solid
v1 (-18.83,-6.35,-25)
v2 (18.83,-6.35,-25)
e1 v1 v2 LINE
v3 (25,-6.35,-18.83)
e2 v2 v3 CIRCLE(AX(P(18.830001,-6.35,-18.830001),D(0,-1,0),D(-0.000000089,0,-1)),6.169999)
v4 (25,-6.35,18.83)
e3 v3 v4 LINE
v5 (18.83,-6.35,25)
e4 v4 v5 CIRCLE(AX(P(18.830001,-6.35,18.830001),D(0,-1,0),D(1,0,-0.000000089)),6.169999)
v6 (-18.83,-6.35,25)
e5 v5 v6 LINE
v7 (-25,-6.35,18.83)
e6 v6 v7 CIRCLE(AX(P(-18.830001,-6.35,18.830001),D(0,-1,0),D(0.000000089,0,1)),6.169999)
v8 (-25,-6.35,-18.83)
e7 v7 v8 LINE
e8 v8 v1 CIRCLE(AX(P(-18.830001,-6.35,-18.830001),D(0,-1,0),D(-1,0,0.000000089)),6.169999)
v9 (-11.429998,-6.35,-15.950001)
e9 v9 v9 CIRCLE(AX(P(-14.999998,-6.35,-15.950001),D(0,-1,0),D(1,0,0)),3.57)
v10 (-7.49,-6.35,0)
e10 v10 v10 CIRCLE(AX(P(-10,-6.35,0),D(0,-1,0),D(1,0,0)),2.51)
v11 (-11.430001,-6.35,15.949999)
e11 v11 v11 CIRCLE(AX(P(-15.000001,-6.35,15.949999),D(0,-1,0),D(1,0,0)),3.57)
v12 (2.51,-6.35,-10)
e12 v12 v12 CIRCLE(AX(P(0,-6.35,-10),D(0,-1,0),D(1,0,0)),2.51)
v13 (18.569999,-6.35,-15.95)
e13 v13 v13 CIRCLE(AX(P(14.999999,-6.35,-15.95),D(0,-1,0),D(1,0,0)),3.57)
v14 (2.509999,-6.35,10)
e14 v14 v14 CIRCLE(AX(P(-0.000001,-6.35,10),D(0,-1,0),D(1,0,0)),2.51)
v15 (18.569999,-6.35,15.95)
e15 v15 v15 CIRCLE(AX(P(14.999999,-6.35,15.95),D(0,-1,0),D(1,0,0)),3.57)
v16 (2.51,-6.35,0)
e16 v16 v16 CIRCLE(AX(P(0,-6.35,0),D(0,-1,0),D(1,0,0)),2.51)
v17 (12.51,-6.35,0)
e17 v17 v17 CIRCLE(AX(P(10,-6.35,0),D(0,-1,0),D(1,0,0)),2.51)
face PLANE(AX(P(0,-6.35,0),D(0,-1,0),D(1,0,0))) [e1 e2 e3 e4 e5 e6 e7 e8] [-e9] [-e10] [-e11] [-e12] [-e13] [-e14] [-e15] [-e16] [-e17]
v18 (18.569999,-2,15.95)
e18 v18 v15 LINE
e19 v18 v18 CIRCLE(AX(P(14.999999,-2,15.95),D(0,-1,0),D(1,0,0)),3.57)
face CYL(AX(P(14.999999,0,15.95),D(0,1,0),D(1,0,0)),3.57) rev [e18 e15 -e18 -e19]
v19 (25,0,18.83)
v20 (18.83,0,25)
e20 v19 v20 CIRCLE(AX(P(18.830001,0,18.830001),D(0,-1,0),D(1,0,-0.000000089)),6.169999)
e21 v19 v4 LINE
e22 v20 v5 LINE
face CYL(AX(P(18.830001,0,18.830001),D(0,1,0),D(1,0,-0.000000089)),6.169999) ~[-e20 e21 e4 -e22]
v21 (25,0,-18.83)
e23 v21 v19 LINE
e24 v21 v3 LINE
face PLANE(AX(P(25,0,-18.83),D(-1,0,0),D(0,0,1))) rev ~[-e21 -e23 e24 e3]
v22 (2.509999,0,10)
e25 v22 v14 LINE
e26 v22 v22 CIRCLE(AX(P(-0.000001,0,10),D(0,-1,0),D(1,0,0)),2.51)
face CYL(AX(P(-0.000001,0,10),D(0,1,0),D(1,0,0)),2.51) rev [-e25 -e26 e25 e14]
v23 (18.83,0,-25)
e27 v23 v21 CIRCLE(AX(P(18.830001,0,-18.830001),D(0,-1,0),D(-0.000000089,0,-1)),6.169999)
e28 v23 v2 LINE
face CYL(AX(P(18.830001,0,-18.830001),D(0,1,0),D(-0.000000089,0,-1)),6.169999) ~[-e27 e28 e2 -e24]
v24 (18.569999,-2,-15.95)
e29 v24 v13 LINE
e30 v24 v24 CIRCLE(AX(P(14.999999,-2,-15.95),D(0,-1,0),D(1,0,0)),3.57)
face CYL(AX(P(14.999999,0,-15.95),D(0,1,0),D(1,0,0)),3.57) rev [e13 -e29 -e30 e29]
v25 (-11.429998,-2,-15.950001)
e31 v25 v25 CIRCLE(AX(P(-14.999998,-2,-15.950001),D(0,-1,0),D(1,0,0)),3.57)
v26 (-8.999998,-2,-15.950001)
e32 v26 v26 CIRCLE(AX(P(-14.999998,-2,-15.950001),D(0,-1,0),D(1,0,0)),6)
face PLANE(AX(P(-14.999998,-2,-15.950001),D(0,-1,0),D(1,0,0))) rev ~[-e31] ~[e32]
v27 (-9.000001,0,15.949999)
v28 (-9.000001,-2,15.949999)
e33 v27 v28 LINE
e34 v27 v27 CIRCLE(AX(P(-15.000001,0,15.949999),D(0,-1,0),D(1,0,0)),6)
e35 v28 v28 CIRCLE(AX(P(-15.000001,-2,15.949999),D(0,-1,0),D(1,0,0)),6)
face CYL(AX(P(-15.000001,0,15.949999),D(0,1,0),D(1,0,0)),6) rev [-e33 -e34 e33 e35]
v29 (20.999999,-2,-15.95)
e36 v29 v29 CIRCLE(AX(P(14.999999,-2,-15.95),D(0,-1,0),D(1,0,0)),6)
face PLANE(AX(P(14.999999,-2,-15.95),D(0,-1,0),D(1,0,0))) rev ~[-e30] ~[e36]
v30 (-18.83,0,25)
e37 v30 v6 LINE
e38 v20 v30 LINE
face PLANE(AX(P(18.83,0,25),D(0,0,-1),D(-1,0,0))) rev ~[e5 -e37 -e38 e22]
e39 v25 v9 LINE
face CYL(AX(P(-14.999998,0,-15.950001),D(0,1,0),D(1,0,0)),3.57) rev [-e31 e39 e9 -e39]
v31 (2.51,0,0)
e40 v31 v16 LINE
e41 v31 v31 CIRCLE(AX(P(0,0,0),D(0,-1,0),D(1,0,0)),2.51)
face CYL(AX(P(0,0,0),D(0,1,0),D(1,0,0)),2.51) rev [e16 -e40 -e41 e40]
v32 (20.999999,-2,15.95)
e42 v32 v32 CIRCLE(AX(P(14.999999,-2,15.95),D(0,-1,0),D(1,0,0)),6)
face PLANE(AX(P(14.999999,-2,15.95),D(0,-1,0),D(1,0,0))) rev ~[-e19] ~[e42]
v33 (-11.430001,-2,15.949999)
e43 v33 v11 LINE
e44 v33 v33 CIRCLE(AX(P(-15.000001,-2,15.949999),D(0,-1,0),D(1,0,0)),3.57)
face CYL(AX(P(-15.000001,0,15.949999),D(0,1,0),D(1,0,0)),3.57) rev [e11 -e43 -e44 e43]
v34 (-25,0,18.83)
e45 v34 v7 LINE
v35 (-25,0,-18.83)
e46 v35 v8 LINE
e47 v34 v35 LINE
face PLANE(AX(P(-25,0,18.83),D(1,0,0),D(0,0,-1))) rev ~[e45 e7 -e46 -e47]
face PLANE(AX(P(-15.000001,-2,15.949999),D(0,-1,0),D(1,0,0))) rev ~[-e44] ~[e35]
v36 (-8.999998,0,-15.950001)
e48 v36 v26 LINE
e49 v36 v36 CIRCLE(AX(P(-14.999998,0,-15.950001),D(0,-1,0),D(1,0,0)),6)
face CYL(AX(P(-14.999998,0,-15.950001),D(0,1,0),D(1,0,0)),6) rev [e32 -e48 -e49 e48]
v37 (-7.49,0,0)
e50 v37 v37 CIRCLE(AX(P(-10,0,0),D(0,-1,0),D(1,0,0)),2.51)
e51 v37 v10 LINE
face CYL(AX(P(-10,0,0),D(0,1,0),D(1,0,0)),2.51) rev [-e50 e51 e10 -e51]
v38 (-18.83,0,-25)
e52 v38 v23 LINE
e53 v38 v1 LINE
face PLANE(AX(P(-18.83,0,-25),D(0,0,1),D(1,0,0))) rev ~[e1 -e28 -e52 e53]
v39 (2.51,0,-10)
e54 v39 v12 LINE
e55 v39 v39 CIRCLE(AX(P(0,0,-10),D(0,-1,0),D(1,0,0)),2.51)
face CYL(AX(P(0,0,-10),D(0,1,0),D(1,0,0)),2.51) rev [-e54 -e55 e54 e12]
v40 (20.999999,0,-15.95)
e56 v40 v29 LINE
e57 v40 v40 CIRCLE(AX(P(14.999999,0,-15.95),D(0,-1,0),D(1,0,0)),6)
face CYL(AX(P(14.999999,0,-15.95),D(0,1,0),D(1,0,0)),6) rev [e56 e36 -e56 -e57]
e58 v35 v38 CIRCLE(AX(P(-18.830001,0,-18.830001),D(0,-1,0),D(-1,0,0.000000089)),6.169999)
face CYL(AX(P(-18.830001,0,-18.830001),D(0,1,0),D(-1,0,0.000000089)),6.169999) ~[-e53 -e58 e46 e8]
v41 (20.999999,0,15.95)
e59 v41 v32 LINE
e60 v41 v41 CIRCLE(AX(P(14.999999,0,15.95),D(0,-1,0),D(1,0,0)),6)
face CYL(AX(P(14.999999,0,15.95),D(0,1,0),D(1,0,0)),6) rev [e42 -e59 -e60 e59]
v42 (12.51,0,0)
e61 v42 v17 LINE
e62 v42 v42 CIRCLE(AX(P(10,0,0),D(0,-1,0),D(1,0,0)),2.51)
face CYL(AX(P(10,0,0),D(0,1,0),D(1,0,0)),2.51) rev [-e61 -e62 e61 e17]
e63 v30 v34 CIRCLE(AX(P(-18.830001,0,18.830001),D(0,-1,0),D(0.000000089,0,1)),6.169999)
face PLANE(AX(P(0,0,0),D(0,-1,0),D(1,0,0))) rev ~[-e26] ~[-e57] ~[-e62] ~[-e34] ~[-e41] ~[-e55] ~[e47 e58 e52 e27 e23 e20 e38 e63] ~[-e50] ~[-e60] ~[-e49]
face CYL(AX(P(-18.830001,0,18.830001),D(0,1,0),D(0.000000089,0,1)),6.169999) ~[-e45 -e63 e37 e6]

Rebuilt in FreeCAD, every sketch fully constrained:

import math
import FreeCAD as App
import Part
import Sketcher

doc = App.newDocument("Part")
body = doc.addObject("PartDesign::Body", "Body")

sketch1 = body.newObject("Sketcher::SketchObject", "Sketch")
sketch1.AttachmentSupport = (doc.getObject("XZ_Plane"), [""])
sketch1.MapMode = "FlatFace"
sketch1.addGeometry([
    Part.LineSegment(App.Vector(-18.8, -25, 0), App.Vector(18.8, -25, 0)),
    Part.ArcOfCircle(Part.Circle(App.Vector(18.8, -18.8, 0), App.Vector(0, 0, 1), 6.2), math.radians(-90), math.radians(0)),
    Part.LineSegment(App.Vector(25, -18.8, 0), App.Vector(25, 18.8, 0)),
    Part.ArcOfCircle(Part.Circle(App.Vector(18.8, 18.8, 0), App.Vector(0, 0, 1), 6.2), math.radians(0), math.radians(90)),
    Part.LineSegment(App.Vector(18.8, 25, 0), App.Vector(-18.8, 25, 0)),
    Part.ArcOfCircle(Part.Circle(App.Vector(-18.8, 18.8, 0), App.Vector(0, 0, 1), 6.2), math.radians(90), math.radians(180)),
    Part.LineSegment(App.Vector(-25, 18.8, 0), App.Vector(-25, -18.8, 0)),
    Part.ArcOfCircle(Part.Circle(App.Vector(-18.8, -18.8, 0), App.Vector(0, 0, 1), 6.2), math.radians(180), math.radians(270)),
    Part.Circle(App.Vector(-15, -16, 0), App.Vector(0, 0, 1), 3.6),
    Part.Circle(App.Vector(0, -10, 0), App.Vector(0, 0, 1), 2.5),
    Part.Circle(App.Vector(15, -15.9, 0), App.Vector(0, 0, 1), 3.6),
    Part.Circle(App.Vector(-10, 0, 0), App.Vector(0, 0, 1), 2.5),
    Part.Circle(App.Vector(-15, 15.9, 0), App.Vector(0, 0, 1), 3.6),
    Part.Circle(App.Vector(0, 10, 0), App.Vector(0, 0, 1), 2.5),
    Part.Circle(App.Vector(0, 0, 0), App.Vector(0, 0, 1), 2.5),
    Part.Circle(App.Vector(10, 0, 0), App.Vector(0, 0, 1), 2.5),
    Part.Circle(App.Vector(15, 15.9, 0), App.Vector(0, 0, 1), 3.6),
], False)
sketch1.addConstraint([
    Sketcher.Constraint("Tangent", 0, 2, 1, 1),
    Sketcher.Constraint("Tangent", 1, 2, 2, 1),
    Sketcher.Constraint("Tangent", 2, 2, 3, 1),
    Sketcher.Constraint("Tangent", 3, 2, 4, 1),
    Sketcher.Constraint("Tangent", 4, 2, 5, 1),
    Sketcher.Constraint("Tangent", 5, 2, 6, 1),
    Sketcher.Constraint("Tangent", 6, 2, 7, 1),
    Sketcher.Constraint("Tangent", 7, 2, 0, 1),
    Sketcher.Constraint("Horizontal", 0),
    Sketcher.Constraint("Vertical", 2),
    Sketcher.Constraint("Horizontal", 4),
    Sketcher.Constraint("Vertical", 6),
    Sketcher.Constraint("Coincident", 14, 3, -1, 1),
    Sketcher.Constraint("Equal", 1, 3),
    Sketcher.Constraint("Equal", 3, 5),
    Sketcher.Constraint("Equal", 5, 7),
    Sketcher.Constraint("Equal", 8, 10),
    Sketcher.Constraint("Equal", 9, 11),
    Sketcher.Constraint("Equal", 10, 12),
    Sketcher.Constraint("Equal", 11, 13),
    Sketcher.Constraint("Equal", 13, 14),
    Sketcher.Constraint("Equal", 14, 15),
    Sketcher.Constraint("Equal", 12, 16),
    Sketcher.Constraint("Symmetric", 1, 3, 5, 3, -1, 1),
    Sketcher.Constraint("Symmetric", 10, 3, 12, 3, -1, 1),
    Sketcher.Constraint("Symmetric", 9, 3, 13, 3, -1, 1),
    Sketcher.Constraint("Symmetric", 11, 3, 15, 3, -1, 1),
    Sketcher.Constraint("Symmetric", 8, 3, 16, 3, -1, 1),
    Sketcher.Constraint("Symmetric", 8, 3, 10, 3, -2),
    Sketcher.Constraint("PointOnObject", 9, 3, -2),
    Sketcher.Constraint("PointOnObject", 11, 3, -1),
    Sketcher.Constraint("Equal", 4, 2),
    Sketcher.Constraint("Diameter", 8, 7.14),
    Sketcher.Constraint("Diameter", 9, 5.02),
    Sketcher.Constraint("Radius", 1, 6.169999),
    Sketcher.Constraint("DistanceY", 9, 3, -1, 1, 10.0),
    Sketcher.Constraint("DistanceX", -1, 1, 10, 3, 14.999999),
    Sketcher.Constraint("DistanceX", 11, 3, -1, 1, 10.0),
    Sketcher.Constraint("DistanceY", 0, 2, -1, 1, 25.0),
    Sketcher.Constraint("DistanceY", 8, 3, 12, 3, 31.9),
])
pad1 = body.newObject("PartDesign::Pad", "Pad")
pad1.Profile = sketch1
pad1.Length = 6.35

sketch2 = body.newObject("Sketcher::SketchObject", "Sketch001")
sketch2.AttachmentSupport = (doc.getObject("XZ_Plane"), [""])
sketch2.MapMode = "FlatFace"
sketch2.addGeometry([
    Part.Circle(App.Vector(15, 15.9, 0), App.Vector(0, 0, 1), 6),
    Part.Circle(App.Vector(15, 15.9, 0), App.Vector(0, 0, 1), 3.6),
    Part.Circle(App.Vector(-15, 15.9, 0), App.Vector(0, 0, 1), 6),
    Part.Circle(App.Vector(-15, 15.9, 0), App.Vector(0, 0, 1), 3.6),
    Part.Circle(App.Vector(-15, -16, 0), App.Vector(0, 0, 1), 6),
    Part.Circle(App.Vector(-15, -16, 0), App.Vector(0, 0, 1), 3.6),
    Part.Circle(App.Vector(15, -15.9, 0), App.Vector(0, 0, 1), 6),
    Part.Circle(App.Vector(15, -15.9, 0), App.Vector(0, 0, 1), 3.6),
], False)
sketch2.addConstraint([
    Sketcher.Constraint("Coincident", 1, 3, 0, 3),
    Sketcher.Constraint("Coincident", 3, 3, 2, 3),
    Sketcher.Constraint("Coincident", 5, 3, 4, 3),
    Sketcher.Constraint("Coincident", 7, 3, 6, 3),
    Sketcher.Constraint("Equal", 0, 2),
    Sketcher.Constraint("Equal", 1, 3),
    Sketcher.Constraint("Equal", 2, 4),
    Sketcher.Constraint("Equal", 3, 5),
    Sketcher.Constraint("Equal", 4, 6),
    Sketcher.Constraint("Equal", 5, 7),
    Sketcher.Constraint("Symmetric", 0, 3, 4, 3, -1, 1),
    Sketcher.Constraint("Symmetric", 2, 3, 6, 3, -1, 1),
    Sketcher.Constraint("Symmetric", 0, 3, 2, 3, -2),
    Sketcher.Constraint("Diameter", 0, 12.0),
    Sketcher.Constraint("Diameter", 1, 7.14),
    Sketcher.Constraint("DistanceX", -1, 1, 0, 3, 14.999999),
    Sketcher.Constraint("DistanceY", 4, 3, 2, 3, 31.9),
])
pocket1 = body.newObject("PartDesign::Pocket", "Pocket")
pocket1.Profile = sketch2
pocket1.Length = 2
pocket1.Reversed = True

doc.recompute()
